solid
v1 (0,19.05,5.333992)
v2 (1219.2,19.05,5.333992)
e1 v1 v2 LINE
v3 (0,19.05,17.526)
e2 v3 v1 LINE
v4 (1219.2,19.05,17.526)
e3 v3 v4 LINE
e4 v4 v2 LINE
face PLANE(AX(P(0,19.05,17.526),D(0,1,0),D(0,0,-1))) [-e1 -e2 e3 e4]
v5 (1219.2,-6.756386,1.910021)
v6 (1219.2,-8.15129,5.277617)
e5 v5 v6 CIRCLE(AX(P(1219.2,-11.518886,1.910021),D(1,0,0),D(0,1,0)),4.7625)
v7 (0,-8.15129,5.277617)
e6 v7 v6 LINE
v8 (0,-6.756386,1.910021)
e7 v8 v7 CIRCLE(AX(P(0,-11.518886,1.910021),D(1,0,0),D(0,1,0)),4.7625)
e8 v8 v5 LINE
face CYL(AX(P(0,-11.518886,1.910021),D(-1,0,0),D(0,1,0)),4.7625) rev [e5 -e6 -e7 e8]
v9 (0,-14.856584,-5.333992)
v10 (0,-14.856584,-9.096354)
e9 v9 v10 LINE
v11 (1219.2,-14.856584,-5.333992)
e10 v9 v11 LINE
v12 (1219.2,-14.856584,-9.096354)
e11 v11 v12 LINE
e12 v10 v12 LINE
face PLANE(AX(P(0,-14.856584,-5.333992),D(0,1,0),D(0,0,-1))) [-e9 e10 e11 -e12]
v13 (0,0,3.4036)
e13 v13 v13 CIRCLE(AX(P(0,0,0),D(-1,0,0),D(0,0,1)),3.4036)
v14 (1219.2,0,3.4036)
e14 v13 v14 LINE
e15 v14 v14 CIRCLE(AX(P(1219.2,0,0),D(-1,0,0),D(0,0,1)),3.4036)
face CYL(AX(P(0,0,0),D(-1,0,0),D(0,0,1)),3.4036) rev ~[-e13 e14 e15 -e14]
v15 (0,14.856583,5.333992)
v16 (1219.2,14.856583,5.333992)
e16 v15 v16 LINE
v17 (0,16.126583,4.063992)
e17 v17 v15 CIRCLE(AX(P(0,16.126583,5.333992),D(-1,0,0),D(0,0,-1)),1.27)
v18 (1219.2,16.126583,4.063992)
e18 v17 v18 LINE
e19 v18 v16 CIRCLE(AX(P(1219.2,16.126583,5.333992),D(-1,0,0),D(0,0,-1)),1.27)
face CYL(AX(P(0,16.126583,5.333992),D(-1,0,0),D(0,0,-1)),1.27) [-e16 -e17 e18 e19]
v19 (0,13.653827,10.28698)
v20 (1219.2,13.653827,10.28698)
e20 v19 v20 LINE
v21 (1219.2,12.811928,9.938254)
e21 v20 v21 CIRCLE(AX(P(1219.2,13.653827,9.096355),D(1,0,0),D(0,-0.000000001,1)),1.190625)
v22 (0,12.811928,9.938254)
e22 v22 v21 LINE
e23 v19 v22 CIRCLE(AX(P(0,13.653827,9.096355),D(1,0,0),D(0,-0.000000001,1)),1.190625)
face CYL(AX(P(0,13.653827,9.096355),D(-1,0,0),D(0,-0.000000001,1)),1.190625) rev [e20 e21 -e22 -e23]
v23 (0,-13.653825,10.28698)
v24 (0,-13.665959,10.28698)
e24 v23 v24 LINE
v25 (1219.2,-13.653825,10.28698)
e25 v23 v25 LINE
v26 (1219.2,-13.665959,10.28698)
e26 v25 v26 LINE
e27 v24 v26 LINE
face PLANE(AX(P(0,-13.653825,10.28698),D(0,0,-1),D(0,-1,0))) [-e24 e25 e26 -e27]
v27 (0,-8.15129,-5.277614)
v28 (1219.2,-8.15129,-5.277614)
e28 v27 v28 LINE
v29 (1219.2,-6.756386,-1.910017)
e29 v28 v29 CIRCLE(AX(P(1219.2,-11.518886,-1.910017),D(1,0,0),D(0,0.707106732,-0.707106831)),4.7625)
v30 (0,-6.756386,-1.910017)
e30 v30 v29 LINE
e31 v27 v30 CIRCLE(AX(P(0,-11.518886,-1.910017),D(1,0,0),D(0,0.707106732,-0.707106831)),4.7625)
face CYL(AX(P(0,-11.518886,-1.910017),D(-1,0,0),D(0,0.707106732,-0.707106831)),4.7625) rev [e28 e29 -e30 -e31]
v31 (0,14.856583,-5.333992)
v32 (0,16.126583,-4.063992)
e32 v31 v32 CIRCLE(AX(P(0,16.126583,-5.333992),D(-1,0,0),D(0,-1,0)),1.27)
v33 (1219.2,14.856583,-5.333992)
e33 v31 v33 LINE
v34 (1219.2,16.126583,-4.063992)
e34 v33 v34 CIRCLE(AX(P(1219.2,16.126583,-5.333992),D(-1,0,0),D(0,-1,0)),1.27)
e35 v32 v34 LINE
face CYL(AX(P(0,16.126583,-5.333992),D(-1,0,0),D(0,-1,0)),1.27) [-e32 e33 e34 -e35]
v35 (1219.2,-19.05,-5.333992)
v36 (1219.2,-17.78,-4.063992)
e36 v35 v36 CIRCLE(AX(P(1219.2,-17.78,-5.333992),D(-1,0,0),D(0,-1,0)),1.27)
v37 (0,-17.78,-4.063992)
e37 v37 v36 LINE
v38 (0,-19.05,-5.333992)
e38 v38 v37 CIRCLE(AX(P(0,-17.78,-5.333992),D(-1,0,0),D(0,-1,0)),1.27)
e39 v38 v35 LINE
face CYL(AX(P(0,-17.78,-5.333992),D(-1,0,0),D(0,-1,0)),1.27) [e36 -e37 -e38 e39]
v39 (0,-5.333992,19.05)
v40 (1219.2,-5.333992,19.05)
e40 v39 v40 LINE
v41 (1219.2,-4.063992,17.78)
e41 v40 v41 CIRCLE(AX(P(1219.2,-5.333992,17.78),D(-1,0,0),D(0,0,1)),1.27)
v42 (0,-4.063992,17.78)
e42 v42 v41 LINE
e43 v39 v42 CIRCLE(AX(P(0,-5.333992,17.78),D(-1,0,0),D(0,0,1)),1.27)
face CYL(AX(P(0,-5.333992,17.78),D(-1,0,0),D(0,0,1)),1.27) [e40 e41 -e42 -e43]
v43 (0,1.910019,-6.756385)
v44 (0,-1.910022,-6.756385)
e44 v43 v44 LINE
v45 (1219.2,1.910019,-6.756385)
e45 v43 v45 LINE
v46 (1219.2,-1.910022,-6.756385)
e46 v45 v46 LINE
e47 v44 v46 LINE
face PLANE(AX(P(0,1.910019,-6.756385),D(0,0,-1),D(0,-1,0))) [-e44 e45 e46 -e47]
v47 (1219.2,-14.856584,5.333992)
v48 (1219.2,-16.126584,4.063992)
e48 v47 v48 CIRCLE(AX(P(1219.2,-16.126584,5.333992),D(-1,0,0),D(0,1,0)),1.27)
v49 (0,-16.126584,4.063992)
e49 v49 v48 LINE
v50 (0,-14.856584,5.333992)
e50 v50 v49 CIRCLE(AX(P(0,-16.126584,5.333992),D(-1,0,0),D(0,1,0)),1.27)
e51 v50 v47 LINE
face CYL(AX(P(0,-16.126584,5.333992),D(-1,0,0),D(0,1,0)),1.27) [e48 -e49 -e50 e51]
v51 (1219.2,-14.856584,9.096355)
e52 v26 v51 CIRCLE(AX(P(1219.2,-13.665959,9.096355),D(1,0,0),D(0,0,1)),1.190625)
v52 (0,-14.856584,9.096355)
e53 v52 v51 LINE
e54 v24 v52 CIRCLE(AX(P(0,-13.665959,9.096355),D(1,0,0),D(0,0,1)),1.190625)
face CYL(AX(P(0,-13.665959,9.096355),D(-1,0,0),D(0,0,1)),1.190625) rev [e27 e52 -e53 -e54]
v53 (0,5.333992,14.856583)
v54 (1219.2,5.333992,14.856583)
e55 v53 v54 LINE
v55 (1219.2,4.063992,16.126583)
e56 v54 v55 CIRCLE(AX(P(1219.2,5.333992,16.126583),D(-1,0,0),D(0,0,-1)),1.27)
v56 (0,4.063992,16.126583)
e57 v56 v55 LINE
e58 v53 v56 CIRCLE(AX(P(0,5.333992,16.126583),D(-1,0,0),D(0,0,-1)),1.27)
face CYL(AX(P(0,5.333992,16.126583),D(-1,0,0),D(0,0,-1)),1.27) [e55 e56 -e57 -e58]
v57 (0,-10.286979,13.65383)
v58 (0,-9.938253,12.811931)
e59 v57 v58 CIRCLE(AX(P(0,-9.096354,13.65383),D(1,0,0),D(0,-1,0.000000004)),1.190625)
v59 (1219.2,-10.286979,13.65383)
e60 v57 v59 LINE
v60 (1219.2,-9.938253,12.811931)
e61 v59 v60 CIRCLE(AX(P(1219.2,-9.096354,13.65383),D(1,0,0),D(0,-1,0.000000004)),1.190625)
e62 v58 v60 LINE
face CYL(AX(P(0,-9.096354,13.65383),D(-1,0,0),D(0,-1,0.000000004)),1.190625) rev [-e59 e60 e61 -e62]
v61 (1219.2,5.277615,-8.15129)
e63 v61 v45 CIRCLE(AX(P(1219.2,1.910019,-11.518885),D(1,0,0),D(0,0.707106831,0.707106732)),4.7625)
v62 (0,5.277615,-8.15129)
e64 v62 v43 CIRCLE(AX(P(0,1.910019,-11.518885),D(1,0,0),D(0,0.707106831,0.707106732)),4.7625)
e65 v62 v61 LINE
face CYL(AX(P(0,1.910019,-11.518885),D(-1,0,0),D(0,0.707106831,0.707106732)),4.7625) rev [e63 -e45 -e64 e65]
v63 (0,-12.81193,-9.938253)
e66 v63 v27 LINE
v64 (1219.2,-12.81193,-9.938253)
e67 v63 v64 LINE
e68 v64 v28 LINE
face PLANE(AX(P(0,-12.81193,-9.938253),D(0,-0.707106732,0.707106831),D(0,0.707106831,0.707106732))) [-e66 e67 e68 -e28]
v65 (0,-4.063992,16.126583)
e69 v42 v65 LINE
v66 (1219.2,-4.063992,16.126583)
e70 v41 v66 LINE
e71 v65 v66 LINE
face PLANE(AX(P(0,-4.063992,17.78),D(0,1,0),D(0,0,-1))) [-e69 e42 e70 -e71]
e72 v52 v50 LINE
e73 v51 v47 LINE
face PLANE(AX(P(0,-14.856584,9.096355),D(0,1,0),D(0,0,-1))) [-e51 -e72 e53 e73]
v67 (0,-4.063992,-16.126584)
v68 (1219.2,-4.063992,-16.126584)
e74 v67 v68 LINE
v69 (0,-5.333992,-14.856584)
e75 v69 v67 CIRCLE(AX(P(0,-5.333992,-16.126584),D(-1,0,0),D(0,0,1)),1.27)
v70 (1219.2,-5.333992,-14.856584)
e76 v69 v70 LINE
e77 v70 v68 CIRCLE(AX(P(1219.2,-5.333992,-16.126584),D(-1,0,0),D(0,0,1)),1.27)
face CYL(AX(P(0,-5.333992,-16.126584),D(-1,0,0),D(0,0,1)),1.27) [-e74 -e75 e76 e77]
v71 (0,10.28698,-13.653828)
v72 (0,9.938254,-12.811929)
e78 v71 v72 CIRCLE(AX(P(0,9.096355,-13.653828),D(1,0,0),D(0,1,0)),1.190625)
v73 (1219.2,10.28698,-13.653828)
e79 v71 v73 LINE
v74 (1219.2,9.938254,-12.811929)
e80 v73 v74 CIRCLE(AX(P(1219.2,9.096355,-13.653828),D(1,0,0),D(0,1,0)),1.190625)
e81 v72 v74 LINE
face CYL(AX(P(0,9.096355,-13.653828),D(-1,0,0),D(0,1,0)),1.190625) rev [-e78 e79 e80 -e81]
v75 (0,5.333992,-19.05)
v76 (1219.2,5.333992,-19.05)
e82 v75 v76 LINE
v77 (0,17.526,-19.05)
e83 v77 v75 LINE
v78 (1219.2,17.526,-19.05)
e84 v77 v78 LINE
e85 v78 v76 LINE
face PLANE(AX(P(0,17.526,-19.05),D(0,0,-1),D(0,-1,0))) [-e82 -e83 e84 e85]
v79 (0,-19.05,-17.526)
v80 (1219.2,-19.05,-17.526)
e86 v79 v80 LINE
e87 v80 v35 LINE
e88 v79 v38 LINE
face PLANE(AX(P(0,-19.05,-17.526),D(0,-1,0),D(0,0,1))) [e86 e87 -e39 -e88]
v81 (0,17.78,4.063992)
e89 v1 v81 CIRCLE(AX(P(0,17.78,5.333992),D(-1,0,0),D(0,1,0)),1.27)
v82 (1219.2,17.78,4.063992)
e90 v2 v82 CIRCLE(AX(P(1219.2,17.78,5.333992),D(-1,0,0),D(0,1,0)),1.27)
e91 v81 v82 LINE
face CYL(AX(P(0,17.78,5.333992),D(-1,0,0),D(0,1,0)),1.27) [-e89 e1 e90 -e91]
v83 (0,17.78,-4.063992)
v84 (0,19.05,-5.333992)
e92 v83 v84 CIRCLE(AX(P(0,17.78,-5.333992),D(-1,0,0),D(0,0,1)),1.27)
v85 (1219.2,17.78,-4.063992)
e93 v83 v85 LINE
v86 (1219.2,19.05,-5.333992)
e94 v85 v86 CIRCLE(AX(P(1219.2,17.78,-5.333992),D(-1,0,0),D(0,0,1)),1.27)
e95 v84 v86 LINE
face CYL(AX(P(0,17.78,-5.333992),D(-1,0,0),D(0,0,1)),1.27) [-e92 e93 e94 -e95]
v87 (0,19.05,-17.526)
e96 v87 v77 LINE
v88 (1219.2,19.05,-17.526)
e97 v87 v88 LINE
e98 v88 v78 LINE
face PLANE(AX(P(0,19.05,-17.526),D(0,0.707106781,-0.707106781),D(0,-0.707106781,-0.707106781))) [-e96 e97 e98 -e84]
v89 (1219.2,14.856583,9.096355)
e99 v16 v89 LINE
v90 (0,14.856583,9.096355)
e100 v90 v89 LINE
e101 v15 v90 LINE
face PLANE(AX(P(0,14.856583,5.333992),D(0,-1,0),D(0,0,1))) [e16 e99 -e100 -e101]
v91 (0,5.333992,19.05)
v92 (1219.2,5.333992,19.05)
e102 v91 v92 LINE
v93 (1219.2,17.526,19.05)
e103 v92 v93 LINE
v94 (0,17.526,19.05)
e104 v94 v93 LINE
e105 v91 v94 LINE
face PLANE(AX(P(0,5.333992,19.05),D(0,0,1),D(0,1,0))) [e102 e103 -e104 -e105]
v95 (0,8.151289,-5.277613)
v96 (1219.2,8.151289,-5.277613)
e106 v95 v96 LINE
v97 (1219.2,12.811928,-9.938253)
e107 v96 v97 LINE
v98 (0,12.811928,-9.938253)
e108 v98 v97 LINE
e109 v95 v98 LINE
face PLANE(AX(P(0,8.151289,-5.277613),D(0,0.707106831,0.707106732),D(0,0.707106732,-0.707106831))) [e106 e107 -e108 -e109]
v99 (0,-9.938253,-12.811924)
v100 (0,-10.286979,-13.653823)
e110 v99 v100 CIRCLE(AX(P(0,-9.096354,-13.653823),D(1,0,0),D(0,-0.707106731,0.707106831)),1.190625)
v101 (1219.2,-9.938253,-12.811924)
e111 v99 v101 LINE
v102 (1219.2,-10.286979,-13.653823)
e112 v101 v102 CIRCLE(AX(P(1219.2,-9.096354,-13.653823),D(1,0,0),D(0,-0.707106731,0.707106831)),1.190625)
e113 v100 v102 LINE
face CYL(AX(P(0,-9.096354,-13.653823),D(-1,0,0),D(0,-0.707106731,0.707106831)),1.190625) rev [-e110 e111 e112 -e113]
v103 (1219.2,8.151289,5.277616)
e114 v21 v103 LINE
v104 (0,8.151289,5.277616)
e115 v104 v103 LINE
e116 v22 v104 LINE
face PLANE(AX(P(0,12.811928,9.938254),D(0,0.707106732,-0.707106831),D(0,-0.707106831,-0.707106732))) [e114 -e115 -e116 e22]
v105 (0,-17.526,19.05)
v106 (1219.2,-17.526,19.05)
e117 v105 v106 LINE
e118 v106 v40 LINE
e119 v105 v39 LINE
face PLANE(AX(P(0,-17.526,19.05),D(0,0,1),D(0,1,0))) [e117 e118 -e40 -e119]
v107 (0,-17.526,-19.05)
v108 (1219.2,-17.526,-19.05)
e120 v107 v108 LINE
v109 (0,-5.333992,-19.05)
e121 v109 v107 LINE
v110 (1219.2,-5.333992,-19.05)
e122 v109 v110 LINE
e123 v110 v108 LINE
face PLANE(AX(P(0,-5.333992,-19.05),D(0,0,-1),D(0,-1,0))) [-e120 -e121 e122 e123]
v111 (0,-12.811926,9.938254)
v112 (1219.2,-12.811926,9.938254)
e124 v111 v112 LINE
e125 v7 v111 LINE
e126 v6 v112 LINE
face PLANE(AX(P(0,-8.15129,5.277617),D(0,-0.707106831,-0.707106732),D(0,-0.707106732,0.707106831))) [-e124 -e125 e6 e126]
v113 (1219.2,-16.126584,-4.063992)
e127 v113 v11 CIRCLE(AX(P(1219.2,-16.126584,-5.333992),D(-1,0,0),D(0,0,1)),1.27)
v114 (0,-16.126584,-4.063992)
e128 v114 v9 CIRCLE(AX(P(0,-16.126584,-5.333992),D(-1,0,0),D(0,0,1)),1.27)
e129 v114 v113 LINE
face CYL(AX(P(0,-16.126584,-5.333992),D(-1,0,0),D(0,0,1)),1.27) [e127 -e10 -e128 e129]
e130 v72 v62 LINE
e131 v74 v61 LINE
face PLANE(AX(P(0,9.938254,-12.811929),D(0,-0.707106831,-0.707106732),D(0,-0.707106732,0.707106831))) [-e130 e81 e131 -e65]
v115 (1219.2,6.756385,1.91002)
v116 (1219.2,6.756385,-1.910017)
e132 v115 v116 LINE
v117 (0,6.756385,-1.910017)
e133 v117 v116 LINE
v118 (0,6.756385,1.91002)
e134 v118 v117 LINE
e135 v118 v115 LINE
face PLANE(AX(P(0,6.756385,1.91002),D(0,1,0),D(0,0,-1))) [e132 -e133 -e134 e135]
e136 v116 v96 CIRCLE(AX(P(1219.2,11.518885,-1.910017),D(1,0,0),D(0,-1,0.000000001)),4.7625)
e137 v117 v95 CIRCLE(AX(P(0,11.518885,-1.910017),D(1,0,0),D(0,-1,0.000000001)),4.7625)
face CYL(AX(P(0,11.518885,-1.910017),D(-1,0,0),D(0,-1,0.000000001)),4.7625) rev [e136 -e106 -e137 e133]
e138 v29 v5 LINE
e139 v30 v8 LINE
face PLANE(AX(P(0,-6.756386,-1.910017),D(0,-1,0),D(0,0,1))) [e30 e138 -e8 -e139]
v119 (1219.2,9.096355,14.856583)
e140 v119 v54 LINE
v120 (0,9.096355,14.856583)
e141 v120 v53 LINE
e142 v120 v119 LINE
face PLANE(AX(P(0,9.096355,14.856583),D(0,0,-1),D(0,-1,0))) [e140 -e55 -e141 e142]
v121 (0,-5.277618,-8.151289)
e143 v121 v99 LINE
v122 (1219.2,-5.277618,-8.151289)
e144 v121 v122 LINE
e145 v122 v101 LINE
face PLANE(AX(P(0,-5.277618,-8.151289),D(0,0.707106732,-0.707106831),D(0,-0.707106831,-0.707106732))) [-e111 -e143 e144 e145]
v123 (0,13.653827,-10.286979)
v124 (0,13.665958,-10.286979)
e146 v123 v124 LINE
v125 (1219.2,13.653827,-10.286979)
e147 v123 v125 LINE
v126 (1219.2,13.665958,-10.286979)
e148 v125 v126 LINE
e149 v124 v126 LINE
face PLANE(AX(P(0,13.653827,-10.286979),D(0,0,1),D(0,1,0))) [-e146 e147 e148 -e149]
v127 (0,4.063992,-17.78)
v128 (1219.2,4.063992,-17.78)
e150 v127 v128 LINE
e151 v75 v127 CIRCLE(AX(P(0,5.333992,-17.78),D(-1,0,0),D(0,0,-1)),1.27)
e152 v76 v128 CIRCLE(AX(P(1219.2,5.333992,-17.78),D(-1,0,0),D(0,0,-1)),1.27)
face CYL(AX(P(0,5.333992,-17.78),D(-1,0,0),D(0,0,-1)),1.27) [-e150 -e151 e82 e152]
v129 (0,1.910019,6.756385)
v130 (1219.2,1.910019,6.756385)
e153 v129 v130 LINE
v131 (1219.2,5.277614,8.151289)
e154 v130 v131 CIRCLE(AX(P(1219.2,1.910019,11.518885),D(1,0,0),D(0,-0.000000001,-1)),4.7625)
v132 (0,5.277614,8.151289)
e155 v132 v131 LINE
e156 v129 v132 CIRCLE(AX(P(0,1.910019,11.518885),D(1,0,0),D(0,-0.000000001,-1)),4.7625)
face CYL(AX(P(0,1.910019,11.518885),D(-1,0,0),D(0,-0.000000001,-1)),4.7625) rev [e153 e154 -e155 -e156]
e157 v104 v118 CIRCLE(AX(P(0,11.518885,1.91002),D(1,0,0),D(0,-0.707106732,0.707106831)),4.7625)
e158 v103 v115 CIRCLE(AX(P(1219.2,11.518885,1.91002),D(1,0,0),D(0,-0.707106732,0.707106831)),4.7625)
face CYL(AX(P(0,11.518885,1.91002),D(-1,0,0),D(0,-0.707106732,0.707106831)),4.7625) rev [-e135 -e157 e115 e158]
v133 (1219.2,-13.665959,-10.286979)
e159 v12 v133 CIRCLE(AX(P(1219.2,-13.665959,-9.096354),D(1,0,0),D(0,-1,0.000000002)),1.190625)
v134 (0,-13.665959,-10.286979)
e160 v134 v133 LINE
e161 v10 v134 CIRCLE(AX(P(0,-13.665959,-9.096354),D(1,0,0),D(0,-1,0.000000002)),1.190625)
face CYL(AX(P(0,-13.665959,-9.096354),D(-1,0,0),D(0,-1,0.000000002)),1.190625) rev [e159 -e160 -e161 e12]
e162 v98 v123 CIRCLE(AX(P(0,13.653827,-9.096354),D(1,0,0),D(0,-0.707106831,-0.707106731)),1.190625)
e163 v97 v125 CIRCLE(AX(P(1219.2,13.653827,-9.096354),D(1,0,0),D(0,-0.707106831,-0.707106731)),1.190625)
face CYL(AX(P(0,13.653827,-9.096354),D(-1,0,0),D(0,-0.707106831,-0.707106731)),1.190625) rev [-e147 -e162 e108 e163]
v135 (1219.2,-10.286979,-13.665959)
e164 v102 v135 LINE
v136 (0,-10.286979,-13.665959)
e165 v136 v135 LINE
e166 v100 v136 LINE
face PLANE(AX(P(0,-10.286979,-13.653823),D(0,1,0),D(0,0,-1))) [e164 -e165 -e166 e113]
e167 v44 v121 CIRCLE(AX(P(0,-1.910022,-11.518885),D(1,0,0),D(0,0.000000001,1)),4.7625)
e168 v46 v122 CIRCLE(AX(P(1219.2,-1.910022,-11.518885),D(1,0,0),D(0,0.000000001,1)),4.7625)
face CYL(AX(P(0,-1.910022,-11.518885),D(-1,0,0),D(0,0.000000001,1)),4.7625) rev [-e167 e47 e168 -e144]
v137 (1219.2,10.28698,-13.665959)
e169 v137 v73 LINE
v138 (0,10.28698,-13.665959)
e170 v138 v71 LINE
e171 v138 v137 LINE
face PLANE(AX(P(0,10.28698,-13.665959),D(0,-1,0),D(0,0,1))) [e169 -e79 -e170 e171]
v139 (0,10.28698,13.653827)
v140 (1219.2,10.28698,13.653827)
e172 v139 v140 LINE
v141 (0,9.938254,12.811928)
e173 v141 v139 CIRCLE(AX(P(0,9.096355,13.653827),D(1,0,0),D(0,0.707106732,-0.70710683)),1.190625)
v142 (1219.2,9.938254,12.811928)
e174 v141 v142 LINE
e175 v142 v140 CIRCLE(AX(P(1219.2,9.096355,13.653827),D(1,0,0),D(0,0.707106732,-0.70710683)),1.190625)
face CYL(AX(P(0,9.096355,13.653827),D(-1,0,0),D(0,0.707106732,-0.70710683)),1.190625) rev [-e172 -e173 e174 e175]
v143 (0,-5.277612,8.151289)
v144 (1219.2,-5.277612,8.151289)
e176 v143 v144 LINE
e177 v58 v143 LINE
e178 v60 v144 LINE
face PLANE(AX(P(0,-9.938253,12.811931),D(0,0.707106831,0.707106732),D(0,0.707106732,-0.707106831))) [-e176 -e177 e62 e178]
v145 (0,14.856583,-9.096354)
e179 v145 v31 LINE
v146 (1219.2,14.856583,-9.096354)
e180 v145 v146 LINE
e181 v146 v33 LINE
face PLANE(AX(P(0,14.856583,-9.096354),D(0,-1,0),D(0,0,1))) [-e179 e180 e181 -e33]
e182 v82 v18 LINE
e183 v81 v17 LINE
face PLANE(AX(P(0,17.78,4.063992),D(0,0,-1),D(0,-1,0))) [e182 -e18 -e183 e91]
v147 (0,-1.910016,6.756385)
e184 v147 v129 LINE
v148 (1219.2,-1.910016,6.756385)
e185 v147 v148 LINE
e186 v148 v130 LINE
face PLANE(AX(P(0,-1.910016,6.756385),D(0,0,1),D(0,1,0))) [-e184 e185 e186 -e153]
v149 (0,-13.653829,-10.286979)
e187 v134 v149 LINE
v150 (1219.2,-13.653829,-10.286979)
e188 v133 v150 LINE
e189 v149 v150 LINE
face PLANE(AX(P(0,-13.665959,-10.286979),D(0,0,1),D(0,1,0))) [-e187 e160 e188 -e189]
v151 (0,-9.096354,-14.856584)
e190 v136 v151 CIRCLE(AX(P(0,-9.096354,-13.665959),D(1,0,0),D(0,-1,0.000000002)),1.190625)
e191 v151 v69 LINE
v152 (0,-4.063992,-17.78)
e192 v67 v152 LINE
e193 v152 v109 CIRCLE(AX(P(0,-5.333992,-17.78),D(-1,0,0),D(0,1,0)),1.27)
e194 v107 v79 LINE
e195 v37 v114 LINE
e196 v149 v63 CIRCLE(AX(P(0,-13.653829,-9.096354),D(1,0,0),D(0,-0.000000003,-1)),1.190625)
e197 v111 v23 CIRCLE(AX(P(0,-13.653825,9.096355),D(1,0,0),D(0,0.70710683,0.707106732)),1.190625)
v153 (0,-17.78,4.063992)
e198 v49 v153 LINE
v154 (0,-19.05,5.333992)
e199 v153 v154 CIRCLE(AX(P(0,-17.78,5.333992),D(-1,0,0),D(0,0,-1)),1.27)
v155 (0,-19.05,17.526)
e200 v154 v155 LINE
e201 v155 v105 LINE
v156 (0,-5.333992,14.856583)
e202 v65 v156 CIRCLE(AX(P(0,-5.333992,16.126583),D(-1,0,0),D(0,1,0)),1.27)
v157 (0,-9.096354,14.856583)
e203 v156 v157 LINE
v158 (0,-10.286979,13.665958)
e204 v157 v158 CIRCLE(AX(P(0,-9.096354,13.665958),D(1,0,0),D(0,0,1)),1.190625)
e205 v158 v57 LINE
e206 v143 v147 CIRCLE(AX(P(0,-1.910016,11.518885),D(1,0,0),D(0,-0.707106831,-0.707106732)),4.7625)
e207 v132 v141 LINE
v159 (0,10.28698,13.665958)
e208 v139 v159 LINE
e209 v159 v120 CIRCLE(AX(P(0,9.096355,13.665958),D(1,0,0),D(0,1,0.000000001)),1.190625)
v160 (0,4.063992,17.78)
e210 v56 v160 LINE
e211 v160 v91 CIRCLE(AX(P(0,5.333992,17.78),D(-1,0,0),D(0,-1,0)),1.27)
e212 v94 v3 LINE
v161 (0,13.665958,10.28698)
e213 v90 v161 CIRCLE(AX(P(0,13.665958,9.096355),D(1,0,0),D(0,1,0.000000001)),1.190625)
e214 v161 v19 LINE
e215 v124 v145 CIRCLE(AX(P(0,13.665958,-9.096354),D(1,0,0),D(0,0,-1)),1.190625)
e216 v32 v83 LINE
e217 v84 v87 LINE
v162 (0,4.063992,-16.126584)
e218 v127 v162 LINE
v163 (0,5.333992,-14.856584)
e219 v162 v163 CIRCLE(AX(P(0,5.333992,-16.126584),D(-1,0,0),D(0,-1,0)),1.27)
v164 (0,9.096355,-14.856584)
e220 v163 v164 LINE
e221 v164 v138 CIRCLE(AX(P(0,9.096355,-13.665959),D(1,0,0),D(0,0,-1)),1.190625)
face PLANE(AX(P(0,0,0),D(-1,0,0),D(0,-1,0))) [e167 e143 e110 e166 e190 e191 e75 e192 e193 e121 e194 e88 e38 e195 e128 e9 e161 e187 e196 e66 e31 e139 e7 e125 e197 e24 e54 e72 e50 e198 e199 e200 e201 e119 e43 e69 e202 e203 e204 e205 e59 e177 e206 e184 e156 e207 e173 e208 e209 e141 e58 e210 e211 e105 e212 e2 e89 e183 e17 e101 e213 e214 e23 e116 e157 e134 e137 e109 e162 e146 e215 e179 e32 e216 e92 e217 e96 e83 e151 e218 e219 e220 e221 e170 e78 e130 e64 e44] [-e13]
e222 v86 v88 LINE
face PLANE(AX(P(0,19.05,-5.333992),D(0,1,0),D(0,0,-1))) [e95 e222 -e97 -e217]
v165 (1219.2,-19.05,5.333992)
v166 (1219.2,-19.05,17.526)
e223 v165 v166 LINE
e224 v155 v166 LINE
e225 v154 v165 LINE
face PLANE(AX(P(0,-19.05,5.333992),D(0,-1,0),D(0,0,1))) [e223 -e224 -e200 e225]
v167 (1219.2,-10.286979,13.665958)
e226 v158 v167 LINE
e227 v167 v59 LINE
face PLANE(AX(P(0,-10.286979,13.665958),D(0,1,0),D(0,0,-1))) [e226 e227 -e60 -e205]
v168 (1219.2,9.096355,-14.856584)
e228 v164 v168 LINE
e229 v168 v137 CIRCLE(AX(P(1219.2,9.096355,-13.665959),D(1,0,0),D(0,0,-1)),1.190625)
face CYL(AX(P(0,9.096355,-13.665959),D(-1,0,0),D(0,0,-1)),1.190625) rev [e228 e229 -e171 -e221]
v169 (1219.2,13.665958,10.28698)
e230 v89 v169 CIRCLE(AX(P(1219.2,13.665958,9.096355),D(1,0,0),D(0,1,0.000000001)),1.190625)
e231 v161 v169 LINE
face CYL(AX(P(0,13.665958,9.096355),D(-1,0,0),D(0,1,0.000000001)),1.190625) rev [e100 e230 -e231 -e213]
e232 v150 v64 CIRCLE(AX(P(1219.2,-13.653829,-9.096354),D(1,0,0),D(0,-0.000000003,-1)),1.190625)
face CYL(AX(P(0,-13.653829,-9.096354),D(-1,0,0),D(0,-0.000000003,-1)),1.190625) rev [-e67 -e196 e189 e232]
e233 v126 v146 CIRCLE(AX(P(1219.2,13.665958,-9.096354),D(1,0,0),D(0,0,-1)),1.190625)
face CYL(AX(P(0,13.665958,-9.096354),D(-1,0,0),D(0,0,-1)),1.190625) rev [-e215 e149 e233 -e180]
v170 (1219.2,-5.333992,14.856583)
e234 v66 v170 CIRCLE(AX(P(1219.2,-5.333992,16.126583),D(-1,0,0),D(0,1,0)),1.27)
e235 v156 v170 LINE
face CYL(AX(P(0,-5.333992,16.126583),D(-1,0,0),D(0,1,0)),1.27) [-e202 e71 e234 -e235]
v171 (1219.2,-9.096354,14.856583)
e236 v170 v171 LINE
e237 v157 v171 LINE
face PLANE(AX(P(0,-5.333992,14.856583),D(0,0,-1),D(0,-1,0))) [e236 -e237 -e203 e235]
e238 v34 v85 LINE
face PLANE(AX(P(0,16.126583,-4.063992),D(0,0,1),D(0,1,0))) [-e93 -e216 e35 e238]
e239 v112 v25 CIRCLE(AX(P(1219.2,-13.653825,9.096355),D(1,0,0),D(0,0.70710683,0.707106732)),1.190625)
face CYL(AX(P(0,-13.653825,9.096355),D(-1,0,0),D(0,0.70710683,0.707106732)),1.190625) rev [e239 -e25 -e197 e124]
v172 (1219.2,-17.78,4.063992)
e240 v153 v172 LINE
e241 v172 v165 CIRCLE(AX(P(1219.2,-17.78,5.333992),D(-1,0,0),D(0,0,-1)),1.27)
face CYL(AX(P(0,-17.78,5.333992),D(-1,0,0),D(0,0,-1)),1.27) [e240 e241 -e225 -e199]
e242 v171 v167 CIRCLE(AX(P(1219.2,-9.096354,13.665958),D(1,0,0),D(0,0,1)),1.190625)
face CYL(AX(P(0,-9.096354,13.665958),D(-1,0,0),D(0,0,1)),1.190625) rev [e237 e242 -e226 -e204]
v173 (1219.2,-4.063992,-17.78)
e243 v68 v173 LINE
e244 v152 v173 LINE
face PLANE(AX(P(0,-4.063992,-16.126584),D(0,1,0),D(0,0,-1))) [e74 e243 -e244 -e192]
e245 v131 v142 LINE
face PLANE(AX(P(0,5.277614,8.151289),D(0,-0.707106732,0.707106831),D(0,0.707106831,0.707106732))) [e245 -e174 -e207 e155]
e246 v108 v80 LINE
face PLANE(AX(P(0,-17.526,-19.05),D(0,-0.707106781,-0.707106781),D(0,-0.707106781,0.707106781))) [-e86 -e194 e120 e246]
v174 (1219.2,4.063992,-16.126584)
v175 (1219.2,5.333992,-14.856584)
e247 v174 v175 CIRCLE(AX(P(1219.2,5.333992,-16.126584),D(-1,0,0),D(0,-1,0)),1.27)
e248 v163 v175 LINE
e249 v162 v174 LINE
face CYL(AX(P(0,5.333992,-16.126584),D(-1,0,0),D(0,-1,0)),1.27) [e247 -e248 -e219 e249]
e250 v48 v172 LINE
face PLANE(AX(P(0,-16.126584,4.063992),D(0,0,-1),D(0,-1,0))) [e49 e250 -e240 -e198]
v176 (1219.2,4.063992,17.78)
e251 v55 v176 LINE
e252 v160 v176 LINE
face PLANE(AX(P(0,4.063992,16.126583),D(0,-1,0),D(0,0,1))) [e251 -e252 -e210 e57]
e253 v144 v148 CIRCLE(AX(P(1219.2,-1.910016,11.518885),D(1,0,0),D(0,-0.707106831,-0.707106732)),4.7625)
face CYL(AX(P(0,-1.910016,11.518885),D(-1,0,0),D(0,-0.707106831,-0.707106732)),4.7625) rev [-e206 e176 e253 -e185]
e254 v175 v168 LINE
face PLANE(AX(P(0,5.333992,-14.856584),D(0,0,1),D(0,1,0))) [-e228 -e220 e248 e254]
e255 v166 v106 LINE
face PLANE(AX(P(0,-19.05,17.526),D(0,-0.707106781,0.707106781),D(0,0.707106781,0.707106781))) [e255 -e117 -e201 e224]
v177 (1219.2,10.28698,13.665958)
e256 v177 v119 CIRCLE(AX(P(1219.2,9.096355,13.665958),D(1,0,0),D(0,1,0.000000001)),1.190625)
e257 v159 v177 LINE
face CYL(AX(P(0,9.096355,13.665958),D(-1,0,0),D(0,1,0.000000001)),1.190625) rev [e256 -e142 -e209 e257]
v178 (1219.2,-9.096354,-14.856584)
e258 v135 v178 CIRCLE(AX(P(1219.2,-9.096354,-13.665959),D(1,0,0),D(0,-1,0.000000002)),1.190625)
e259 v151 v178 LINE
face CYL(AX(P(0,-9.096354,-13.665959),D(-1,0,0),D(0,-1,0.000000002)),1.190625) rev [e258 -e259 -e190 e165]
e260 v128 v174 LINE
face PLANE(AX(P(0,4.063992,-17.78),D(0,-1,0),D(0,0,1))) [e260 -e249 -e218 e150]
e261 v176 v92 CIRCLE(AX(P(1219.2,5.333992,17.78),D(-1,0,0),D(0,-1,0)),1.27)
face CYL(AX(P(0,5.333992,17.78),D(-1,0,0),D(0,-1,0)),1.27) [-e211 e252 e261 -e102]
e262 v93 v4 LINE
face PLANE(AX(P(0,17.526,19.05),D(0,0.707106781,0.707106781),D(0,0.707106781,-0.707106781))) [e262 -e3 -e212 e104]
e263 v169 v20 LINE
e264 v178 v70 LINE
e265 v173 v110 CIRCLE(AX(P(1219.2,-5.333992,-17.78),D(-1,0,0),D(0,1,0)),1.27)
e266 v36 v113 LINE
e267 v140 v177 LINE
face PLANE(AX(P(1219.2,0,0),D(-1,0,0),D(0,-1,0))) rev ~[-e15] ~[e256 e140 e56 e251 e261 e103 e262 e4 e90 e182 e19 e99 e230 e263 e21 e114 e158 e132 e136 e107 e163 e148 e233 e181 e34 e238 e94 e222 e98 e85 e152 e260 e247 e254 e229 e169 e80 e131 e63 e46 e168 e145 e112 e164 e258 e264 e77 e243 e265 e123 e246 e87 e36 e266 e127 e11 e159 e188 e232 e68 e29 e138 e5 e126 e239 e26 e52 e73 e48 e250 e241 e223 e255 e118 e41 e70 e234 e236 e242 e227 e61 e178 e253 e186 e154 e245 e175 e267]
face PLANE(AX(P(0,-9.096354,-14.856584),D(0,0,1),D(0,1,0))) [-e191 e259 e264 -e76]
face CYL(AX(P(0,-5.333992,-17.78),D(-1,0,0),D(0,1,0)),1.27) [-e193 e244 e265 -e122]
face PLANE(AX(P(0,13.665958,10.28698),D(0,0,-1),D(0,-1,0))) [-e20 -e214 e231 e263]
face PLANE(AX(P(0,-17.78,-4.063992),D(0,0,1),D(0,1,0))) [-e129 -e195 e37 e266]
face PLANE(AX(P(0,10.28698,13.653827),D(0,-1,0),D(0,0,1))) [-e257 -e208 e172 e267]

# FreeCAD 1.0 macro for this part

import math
import FreeCAD as App
import Part
import Sketcher
from FreeCAD import Vector
Q = App.Units.Quantity

doc = App.newDocument("Part")
params = doc.addObject("Spreadsheet::Sheet", "Params")
for row, (alias, value) in enumerate([
    ("sketch1_radius", "0.05 in"),
    ("sketch1_diameter", "0.268 in"),
    ("sketch1_radius2", "0.046875 in"),
    ("sketch1_radius3", "0.1875 in"),
    ("pad1_length", "48 in"),
], start=1):
    params.set(f"A{row}", alias)
    params.set(f"B{row}", "=" + value)
    params.setAlias(f"B{row}", alias)

body = doc.addObject("PartDesign::Body", "Body")

# Sketch on YZ plane
sketch1 = body.newObject("Sketcher::SketchObject", "Sketch")
sketch1.AttachmentSupport = (doc.getObject("YZ_Plane"), [""])
sketch1.MapMode = "FlatFace"
sketch1.addGeometry([
    Part.LineSegment(Vector(-19.05, 5.334, 0), Vector(-19.05, 17.526, 0)),  # 0
    Part.LineSegment(Vector(-19.05, 17.526, 0), Vector(-17.526, 19.05, 0)),  # 1
    Part.LineSegment(Vector(-17.526, 19.05, 0), Vector(-5.334, 19.05, 0)),  # 2
    Part.ArcOfCircle(Part.Circle(Vector(-5.334, 17.78, 0), Vector(0, 0, 1), 1.27), math.radians(0), math.radians(90)),  # 3
    Part.LineSegment(Vector(-4.064, 17.78, 0), Vector(-4.064, 16.127, 0)),  # 4
    Part.ArcOfCircle(Part.Circle(Vector(-5.334, 16.127, 0), Vector(0, 0, 1), 1.27), math.radians(-90), math.radians(0)),  # 5
    Part.LineSegment(Vector(-5.334, 14.857, 0), Vector(-9.096, 14.857, 0)),  # 6
    Part.ArcOfCircle(Part.Circle(Vector(-9.096, 13.666, 0), Vector(0, 0, 1), 1.191), math.radians(90), math.radians(180)),  # 7
    Part.LineSegment(Vector(-10.287, 13.666, 0), Vector(-10.287, 13.654, 0)),  # 8
    Part.ArcOfCircle(Part.Circle(Vector(-9.096, 13.654, 0), Vector(0, 0, 1), 1.191), math.radians(180), math.radians(225)),  # 9
    Part.LineSegment(Vector(-9.938, 12.812, 0), Vector(-5.278, 8.151, 0)),  # 10
    Part.ArcOfCircle(Part.Circle(Vector(-1.91, 11.519, 0), Vector(0, 0, 1), 4.762), math.radians(-135), math.radians(-90)),  # 11
    Part.LineSegment(Vector(-1.91, 6.756, 0), Vector(1.91, 6.756, 0)),  # 12
    Part.ArcOfCircle(Part.Circle(Vector(1.91, 11.519, 0), Vector(0, 0, 1), 4.762), math.radians(-90), math.radians(-45)),  # 13
    Part.LineSegment(Vector(5.278, 8.151, 0), Vector(9.938, 12.812, 0)),  # 14
    Part.ArcOfCircle(Part.Circle(Vector(9.096, 13.654, 0), Vector(0, 0, 1), 1.191), math.radians(-45), math.radians(0)),  # 15
    Part.LineSegment(Vector(10.287, 13.654, 0), Vector(10.287, 13.666, 0)),  # 16
    Part.ArcOfCircle(Part.Circle(Vector(9.096, 13.666, 0), Vector(0, 0, 1), 1.191), math.radians(0), math.radians(90)),  # 17
    Part.LineSegment(Vector(9.096, 14.857, 0), Vector(5.334, 14.857, 0)),  # 18
    Part.ArcOfCircle(Part.Circle(Vector(5.334, 16.127, 0), Vector(0, 0, 1), 1.27), math.radians(180), math.radians(270)),  # 19
    Part.LineSegment(Vector(4.064, 16.127, 0), Vector(4.064, 17.78, 0)),  # 20
    Part.ArcOfCircle(Part.Circle(Vector(5.334, 17.78, 0), Vector(0, 0, 1), 1.27), math.radians(90), math.radians(180)),  # 21
    Part.LineSegment(Vector(5.334, 19.05, 0), Vector(17.526, 19.05, 0)),  # 22
    Part.LineSegment(Vector(17.526, 19.05, 0), Vector(19.05, 17.526, 0)),  # 23
    Part.LineSegment(Vector(19.05, 17.526, 0), Vector(19.05, 5.334, 0)),  # 24
    Part.ArcOfCircle(Part.Circle(Vector(17.78, 5.334, 0), Vector(0, 0, 1), 1.27), math.radians(-90), math.radians(0)),  # 25
    Part.LineSegment(Vector(17.78, 4.064, 0), Vector(16.127, 4.064, 0)),  # 26
    Part.ArcOfCircle(Part.Circle(Vector(16.127, 5.334, 0), Vector(0, 0, 1), 1.27), math.radians(180), math.radians(270)),  # 27
    Part.LineSegment(Vector(14.857, 5.334, 0), Vector(14.857, 9.096, 0)),  # 28
    Part.ArcOfCircle(Part.Circle(Vector(13.666, 9.096, 0), Vector(0, 0, 1), 1.191), math.radians(0), math.radians(90)),  # 29
    Part.LineSegment(Vector(13.666, 10.287, 0), Vector(13.654, 10.287, 0)),  # 30
    Part.ArcOfCircle(Part.Circle(Vector(13.654, 9.096, 0), Vector(0, 0, 1), 1.191), math.radians(90), math.radians(135)),  # 31
    Part.LineSegment(Vector(12.812, 9.938, 0), Vector(8.151, 5.278, 0)),  # 32
    Part.ArcOfCircle(Part.Circle(Vector(11.519, 1.91, 0), Vector(0, 0, 1), 4.762), math.radians(135), math.radians(180)),  # 33
    Part.LineSegment(Vector(6.756, 1.91, 0), Vector(6.756, -1.91, 0)),  # 34
    Part.ArcOfCircle(Part.Circle(Vector(11.519, -1.91, 0), Vector(0, 0, 1), 4.762), math.radians(180), math.radians(225)),  # 35
    Part.LineSegment(Vector(8.151, -5.278, 0), Vector(12.812, -9.938, 0)),  # 36
    Part.ArcOfCircle(Part.Circle(Vector(13.654, -9.096, 0), Vector(0, 0, 1), 1.191), math.radians(-135), math.radians(-90)),  # 37
    Part.LineSegment(Vector(13.654, -10.287, 0), Vector(13.666, -10.287, 0)),  # 38
    Part.ArcOfCircle(Part.Circle(Vector(13.666, -9.096, 0), Vector(0, 0, 1), 1.191), math.radians(-90), math.radians(0)),  # 39
    Part.LineSegment(Vector(14.857, -9.096, 0), Vector(14.857, -5.334, 0)),  # 40
    Part.ArcOfCircle(Part.Circle(Vector(16.127, -5.334, 0), Vector(0, 0, 1), 1.27), math.radians(90), math.radians(180)),  # 41
    Part.LineSegment(Vector(16.127, -4.064, 0), Vector(17.78, -4.064, 0)),  # 42
    Part.ArcOfCircle(Part.Circle(Vector(17.78, -5.334, 0), Vector(0, 0, 1), 1.27), math.radians(0), math.radians(90)),  # 43
    Part.LineSegment(Vector(19.05, -5.334, 0), Vector(19.05, -17.526, 0)),  # 44
    Part.LineSegment(Vector(19.05, -17.526, 0), Vector(17.526, -19.05, 0)),  # 45
    Part.LineSegment(Vector(17.526, -19.05, 0), Vector(5.334, -19.05, 0)),  # 46
    Part.ArcOfCircle(Part.Circle(Vector(5.334, -17.78, 0), Vector(0, 0, 1), 1.27), math.radians(180), math.radians(270)),  # 47
    Part.LineSegment(Vector(4.064, -17.78, 0), Vector(4.064, -16.127, 0)),  # 48
    Part.ArcOfCircle(Part.Circle(Vector(5.334, -16.127, 0), Vector(0, 0, 1), 1.27), math.radians(90), math.radians(180)),  # 49
    Part.LineSegment(Vector(5.334, -14.857, 0), Vector(9.096, -14.857, 0)),  # 50
    Part.ArcOfCircle(Part.Circle(Vector(9.096, -13.666, 0), Vector(0, 0, 1), 1.191), math.radians(-90), math.radians(0)),  # 51
    Part.LineSegment(Vector(10.287, -13.666, 0), Vector(10.287, -13.654, 0)),  # 52
    Part.ArcOfCircle(Part.Circle(Vector(9.096, -13.654, 0), Vector(0, 0, 1), 1.191), math.radians(0), math.radians(45)),  # 53
    Part.LineSegment(Vector(9.938, -12.812, 0), Vector(5.278, -8.151, 0)),  # 54
    Part.ArcOfCircle(Part.Circle(Vector(1.91, -11.519, 0), Vector(0, 0, 1), 4.763), math.radians(45), math.radians(90)),  # 55
    Part.LineSegment(Vector(1.91, -6.756, 0), Vector(-1.91, -6.756, 0)),  # 56
    Part.ArcOfCircle(Part.Circle(Vector(-1.91, -11.519, 0), Vector(0, 0, 1), 4.762), math.radians(90), math.radians(135)),  # 57
    Part.LineSegment(Vector(-5.278, -8.151, 0), Vector(-9.938, -12.812, 0)),  # 58
    Part.ArcOfCircle(Part.Circle(Vector(-9.096, -13.654, 0), Vector(0, 0, 1), 1.191), math.radians(135), math.radians(180)),  # 59
    Part.LineSegment(Vector(-10.287, -13.654, 0), Vector(-10.287, -13.666, 0)),  # 60
    Part.ArcOfCircle(Part.Circle(Vector(-9.096, -13.666, 0), Vector(0, 0, 1), 1.191), math.radians(180), math.radians(270)),  # 61
    Part.LineSegment(Vector(-9.096, -14.857, 0), Vector(-5.334, -14.857, 0)),  # 62
    Part.ArcOfCircle(Part.Circle(Vector(-5.334, -16.127, 0), Vector(0, 0, 1), 1.27), math.radians(0), math.radians(90)),  # 63
    Part.LineSegment(Vector(-4.064, -16.127, 0), Vector(-4.064, -17.78, 0)),  # 64
    Part.ArcOfCircle(Part.Circle(Vector(-5.334, -17.78, 0), Vector(0, 0, 1), 1.27), math.radians(-90), math.radians(0)),  # 65
    Part.LineSegment(Vector(-5.334, -19.05, 0), Vector(-17.526, -19.05, 0)),  # 66
    Part.LineSegment(Vector(-17.526, -19.05, 0), Vector(-19.05, -17.526, 0)),  # 67
    Part.LineSegment(Vector(-19.05, -17.526, 0), Vector(-19.05, -5.334, 0)),  # 68
    Part.ArcOfCircle(Part.Circle(Vector(-17.78, -5.334, 0), Vector(0, 0, 1), 1.27), math.radians(90), math.radians(180)),  # 69
    Part.LineSegment(Vector(-17.78, -4.064, 0), Vector(-16.127, -4.064, 0)),  # 70
    Part.ArcOfCircle(Part.Circle(Vector(-16.127, -5.334, 0), Vector(0, 0, 1), 1.27), math.radians(0), math.radians(90)),  # 71
    Part.LineSegment(Vector(-14.857, -5.334, 0), Vector(-14.857, -9.096, 0)),  # 72
    Part.ArcOfCircle(Part.Circle(Vector(-13.666, -9.096, 0), Vector(0, 0, 1), 1.191), math.radians(180), math.radians(270)),  # 73
    Part.LineSegment(Vector(-13.666, -10.287, 0), Vector(-13.654, -10.287, 0)),  # 74
    Part.ArcOfCircle(Part.Circle(Vector(-13.654, -9.096, 0), Vector(0, 0, 1), 1.191), math.radians(-90), math.radians(-45)),  # 75
    Part.LineSegment(Vector(-12.812, -9.938, 0), Vector(-8.151, -5.278, 0)),  # 76
    Part.ArcOfCircle(Part.Circle(Vector(-11.519, -1.91, 0), Vector(0, 0, 1), 4.762), math.radians(-45), math.radians(0)),  # 77
    Part.LineSegment(Vector(-6.756, -1.91, 0), Vector(-6.756, 1.91, 0)),  # 78
    Part.ArcOfCircle(Part.Circle(Vector(-11.519, 1.91, 0), Vector(0, 0, 1), 4.763), math.radians(0), math.radians(45)),  # 79
    Part.LineSegment(Vector(-8.151, 5.278, 0), Vector(-12.812, 9.938, 0)),  # 80
    Part.ArcOfCircle(Part.Circle(Vector(-13.654, 9.096, 0), Vector(0, 0, 1), 1.191), math.radians(45), math.radians(90)),  # 81
    Part.LineSegment(Vector(-13.654, 10.287, 0), Vector(-13.666, 10.287, 0)),  # 82
    Part.ArcOfCircle(Part.Circle(Vector(-13.666, 9.096, 0), Vector(0, 0, 1), 1.191), math.radians(90), math.radians(180)),  # 83
    Part.LineSegment(Vector(-14.857, 9.096, 0), Vector(-14.857, 5.334, 0)),  # 84
    Part.ArcOfCircle(Part.Circle(Vector(-16.127, 5.334, 0), Vector(0, 0, 1), 1.27), math.radians(-90), math.radians(0)),  # 85
    Part.LineSegment(Vector(-16.127, 4.064, 0), Vector(-17.78, 4.064, 0)),  # 86
    Part.ArcOfCircle(Part.Circle(Vector(-17.78, 5.334, 0), Vector(0, 0, 1), 1.27), math.radians(180), math.radians(270)),  # 87
    Part.Circle(Vector(0, 0, 0), Vector(0, 0, 1), 3.404),  # 88
], False)
sketch1.addConstraint([
    Sketcher.Constraint("Coincident", 0, 2, 1, 1),
    Sketcher.Constraint("Coincident", 1, 2, 2, 1),
    Sketcher.Constraint("Tangent", 2, 2, 3, 2),
    Sketcher.Constraint("Tangent", 3, 1, 4, 1),
    Sketcher.Constraint("Tangent", 4, 2, 5, 2),
    Sketcher.Constraint("Tangent", 5, 1, 6, 1),
    Sketcher.Constraint("Tangent", 6, 2, 7, 1),
    Sketcher.Constraint("Tangent", 7, 2, 8, 1),
    Sketcher.Constraint("Tangent", 8, 2, 9, 1),
    Sketcher.Constraint("Tangent", 9, 2, 10, 1),
    Sketcher.Constraint("Tangent", 10, 2, 11, 1),
    Sketcher.Constraint("Tangent", 11, 2, 12, 1),
    Sketcher.Constraint("Tangent", 12, 2, 13, 1),
    Sketcher.Constraint("Tangent", 13, 2, 14, 1),
    Sketcher.Constraint("Tangent", 14, 2, 15, 1),
    Sketcher.Constraint("Tangent", 15, 2, 16, 1),
    Sketcher.Constraint("Tangent", 16, 2, 17, 1),
    Sketcher.Constraint("Tangent", 17, 2, 18, 1),
    Sketcher.Constraint("Tangent", 18, 2, 19, 2),
    Sketcher.Constraint("Tangent", 19, 1, 20, 1),
    Sketcher.Constraint("Tangent", 20, 2, 21, 2),
    Sketcher.Constraint("Tangent", 21, 1, 22, 1),
    Sketcher.Constraint("Coincident", 22, 2, 23, 1),
    Sketcher.Constraint("Coincident", 23, 2, 24, 1),
    Sketcher.Constraint("Tangent", 24, 2, 25, 2),
    Sketcher.Constraint("Tangent", 25, 1, 26, 1),
    Sketcher.Constraint("Tangent", 26, 2, 27, 2),
    Sketcher.Constraint("Tangent", 27, 1, 28, 1),
    Sketcher.Constraint("Tangent", 28, 2, 29, 1),
    Sketcher.Constraint("Tangent", 29, 2, 30, 1),
    Sketcher.Constraint("Tangent", 30, 2, 31, 1),
    Sketcher.Constraint("Tangent", 31, 2, 32, 1),
    Sketcher.Constraint("Tangent", 32, 2, 33, 1),
    Sketcher.Constraint("Tangent", 33, 2, 34, 1),
    Sketcher.Constraint("Tangent", 34, 2, 35, 1),
    Sketcher.Constraint("Tangent", 35, 2, 36, 1),
    Sketcher.Constraint("Tangent", 36, 2, 37, 1),
    Sketcher.Constraint("Tangent", 37, 2, 38, 1),
    Sketcher.Constraint("Tangent", 38, 2, 39, 1),
    Sketcher.Constraint("Tangent", 39, 2, 40, 1),
    Sketcher.Constraint("Tangent", 40, 2, 41, 2),
    Sketcher.Constraint("Tangent", 41, 1, 42, 1),
    Sketcher.Constraint("Tangent", 42, 2, 43, 2),
    Sketcher.Constraint("Tangent", 43, 1, 44, 1),
    Sketcher.Constraint("Coincident", 44, 2, 45, 1),
    Sketcher.Constraint("Coincident", 45, 2, 46, 1),
    Sketcher.Constraint("Tangent", 46, 2, 47, 2),
    Sketcher.Constraint("Tangent", 47, 1, 48, 1),
    Sketcher.Constraint("Tangent", 48, 2, 49, 2),
    Sketcher.Constraint("Tangent", 49, 1, 50, 1),
    Sketcher.Constraint("Tangent", 50, 2, 51, 1),
    Sketcher.Constraint("Tangent", 51, 2, 52, 1),
    Sketcher.Constraint("Tangent", 52, 2, 53, 1),
    Sketcher.Constraint("Tangent", 53, 2, 54, 1),
    Sketcher.Constraint("Tangent", 54, 2, 55, 1),
    Sketcher.Constraint("Tangent", 55, 2, 56, 1),
    Sketcher.Constraint("Tangent", 56, 2, 57, 1),
    Sketcher.Constraint("Tangent", 57, 2, 58, 1),
    Sketcher.Constraint("Tangent", 58, 2, 59, 1),
    Sketcher.Constraint("Tangent", 59, 2, 60, 1),
    Sketcher.Constraint("Tangent", 60, 2, 61, 1),
    Sketcher.Constraint("Tangent", 61, 2, 62, 1),
    Sketcher.Constraint("Tangent", 62, 2, 63, 2),
    Sketcher.Constraint("Tangent", 63, 1, 64, 1),
    Sketcher.Constraint("Tangent", 64, 2, 65, 2),
    Sketcher.Constraint("Tangent", 65, 1, 66, 1),
    Sketcher.Constraint("Coincident", 66, 2, 67, 1),
    Sketcher.Constraint("Coincident", 67, 2, 68, 1),
    Sketcher.Constraint("Tangent", 68, 2, 69, 2),
    Sketcher.Constraint("Tangent", 69, 1, 70, 1),
    Sketcher.Constraint("Tangent", 70, 2, 71, 2),
    Sketcher.Constraint("Tangent", 71, 1, 72, 1),
    Sketcher.Constraint("Tangent", 72, 2, 73, 1),
    Sketcher.Constraint("Tangent", 73, 2, 74, 1),
    Sketcher.Constraint("Tangent", 74, 2, 75, 1),
    Sketcher.Constraint("Tangent", 75, 2, 76, 1),
    Sketcher.Constraint("Tangent", 76, 2, 77, 1),
    Sketcher.Constraint("Tangent", 77, 2, 78, 1),
    Sketcher.Constraint("Tangent", 78, 2, 79, 1),
    Sketcher.Constraint("Tangent", 79, 2, 80, 1),
    Sketcher.Constraint("Tangent", 80, 2, 81, 1),
    Sketcher.Constraint("Tangent", 81, 2, 82, 1),
    Sketcher.Constraint("Tangent", 82, 2, 83, 1),
    Sketcher.Constraint("Tangent", 83, 2, 84, 1),
    Sketcher.Constraint("Tangent", 84, 2, 85, 2),
    Sketcher.Constraint("Tangent", 85, 1, 86, 1),
    Sketcher.Constraint("Tangent", 86, 2, 87, 2),
    Sketcher.Constraint("Tangent", 87, 1, 0, 1),
    Sketcher.Constraint("Vertical", 0),
    Sketcher.Constraint("Horizontal", 2),
    Sketcher.Constraint("Vertical", 4),
    Sketcher.Constraint("Horizontal", 6),
    Sketcher.Constraint("Vertical", 8),
    Sketcher.Constraint("Horizontal", 12),
    Sketcher.Constraint("Vertical", 16),
    Sketcher.Constraint("Horizontal", 18),
    Sketcher.Constraint("Vertical", 20),
    Sketcher.Constraint("Horizontal", 22),
    Sketcher.Constraint("Vertical", 24),
    Sketcher.Constraint("Horizontal", 26),
    Sketcher.Constraint("Vertical", 28),
    Sketcher.Constraint("Horizontal", 30),
    Sketcher.Constraint("Vertical", 34),
    Sketcher.Constraint("Horizontal", 38),
    Sketcher.Constraint("Vertical", 40),
    Sketcher.Constraint("Horizontal", 42),
    Sketcher.Constraint("Vertical", 44),
    Sketcher.Constraint("Horizontal", 46),
    Sketcher.Constraint("Vertical", 48),
    Sketcher.Constraint("Horizontal", 50),
    Sketcher.Constraint("Vertical", 52),
    Sketcher.Constraint("Horizontal", 56),
    Sketcher.Constraint("Vertical", 60),
    Sketcher.Constraint("Horizontal", 62),
    Sketcher.Constraint("Vertical", 64),
    Sketcher.Constraint("Horizontal", 66),
    Sketcher.Constraint("Vertical", 68),
    Sketcher.Constraint("Horizontal", 70),
    Sketcher.Constraint("Vertical", 72),
    Sketcher.Constraint("Horizontal", 74),
    Sketcher.Constraint("Vertical", 78),
    Sketcher.Constraint("Horizontal", 82),
    Sketcher.Constraint("Vertical", 84),
    Sketcher.Constraint("Horizontal", 86),
    Sketcher.Constraint("Coincident", 88, 3, -1, 1),
    Sketcher.Constraint("Equal", 3, 5),
    Sketcher.Constraint("Equal", 7, 9),
    Sketcher.Constraint("Equal", 11, 13),
    Sketcher.Constraint("Equal", 9, 15),
    Sketcher.Constraint("Equal", 15, 17),
    Sketcher.Constraint("Equal", 5, 19),
    Sketcher.Constraint("Equal", 19, 21),
    Sketcher.Constraint("Equal", 21, 25),
    Sketcher.Constraint("Equal", 25, 27),
    Sketcher.Constraint("Equal", 17, 29),
    Sketcher.Constraint("Equal", 29, 31),
    Sketcher.Constraint("Equal", 13, 33),
    Sketcher.Constraint("Equal", 33, 35),
    Sketcher.Constraint("Equal", 31, 37),
    Sketcher.Constraint("Equal", 37, 39),
    Sketcher.Constraint("Equal", 27, 41),
    Sketcher.Constraint("Equal", 41, 43),
    Sketcher.Constraint("Equal", 43, 47),
    Sketcher.Constraint("Equal", 47, 49),
    Sketcher.Constraint("Equal", 39, 51),
    Sketcher.Constraint("Equal", 51, 53),
    Sketcher.Constraint("Equal", 35, 55),
    Sketcher.Constraint("Equal", 55, 57),
    Sketcher.Constraint("Equal", 53, 59),
    Sketcher.Constraint("Equal", 59, 61),
    Sketcher.Constraint("Equal", 49, 63),
    Sketcher.Constraint("Equal", 63, 65),
    Sketcher.Constraint("Equal", 65, 69),
    Sketcher.Constraint("Equal", 69, 71),
    Sketcher.Constraint("Equal", 61, 73),
    Sketcher.Constraint("Equal", 73, 75),
    Sketcher.Constraint("Equal", 57, 77),
    Sketcher.Constraint("Equal", 77, 79),
    Sketcher.Constraint("Equal", 75, 81),
    Sketcher.Constraint("Equal", 81, 83),
    Sketcher.Constraint("Equal", 71, 85),
    Sketcher.Constraint("Equal", 85, 87),
    Sketcher.Constraint("Symmetric", 3, 3, 47, 3, -1, 1),
    Sketcher.Constraint("Symmetric", 7, 3, 51, 3, -1, 1),
    Sketcher.Constraint("Symmetric", 11, 3, 55, 3, -1, 1),
    Sketcher.Constraint("Symmetric", 15, 3, 59, 3, -1, 1),
    Sketcher.Constraint("Symmetric", 19, 3, 63, 3, -1, 1),
    Sketcher.Constraint("Symmetric", 25, 3, 69, 3, -1, 1),
    Sketcher.Constraint("Symmetric", 29, 3, 73, 3, -1, 1),
    Sketcher.Constraint("Symmetric", 33, 3, 77, 3, -1, 1),
    Sketcher.Constraint("Symmetric", 37, 3, 81, 3, -1, 1),
    Sketcher.Constraint("Symmetric", 41, 3, 85, 3, -1, 1),
    Sketcher.Constraint("Symmetric", 0, 2, 44, 2, -1, 1),
    Sketcher.Constraint("Symmetric", 22, 2, 66, 2, -1, 1),
    Sketcher.Constraint("Symmetric", 9, 3, 15, 3, -2),
    Sketcher.Constraint("Symmetric", 5, 3, 19, 3, -2),
    Sketcher.Constraint("Symmetric", 43, 3, 69, 3, -2),
    Sketcher.Constraint("Symmetric", 39, 3, 73, 3, -2),
    Sketcher.Constraint("Symmetric", 1, 2, 22, 2, -2),
    Sketcher.Constraint("Symmetric", 54, 2, 57, 2, -2),
    Sketcher.Constraint("Symmetric", 36, 2, 75, 2, -2),
    Sketcher.Constraint("Symmetric", 32, 2, 79, 2, -2),
    Sketcher.Constraint("Perpendicular", 1, 10),
    Sketcher.Constraint("Perpendicular", 10, 14),
    Sketcher.Constraint("Perpendicular", 14, 23),
    Sketcher.Constraint("Perpendicular", 23, 32),
    Sketcher.Constraint("Perpendicular", 32, 36),
    Sketcher.Constraint("Perpendicular", 36, 45),
    Sketcher.Constraint("Perpendicular", 58, 67),
    Sketcher.Constraint("Equal", 66, 0),
    Sketcher.Constraint("Equal", 86, 4),
    Sketcher.Constraint("Equal", 74, 16),
    Sketcher.Constraint("Equal", 62, 28),
    Sketcher.Constraint("Equal", 14, 32),
    Sketcher.Constraint("Radius", 3, Q("0.05 in")),
    Sketcher.Constraint("Diameter", 88, Q("0.268 in")),
    Sketcher.Constraint("Radius", 7, Q("0.046875 in")),
    Sketcher.Constraint("Radius", 11, Q("0.1875 in")),
    Sketcher.Constraint("DistanceY", -1, 1, 3, 3, Q("0.7 in")),
    Sketcher.Constraint("DistanceX", -1, 1, 25, 3, Q("0.7 in")),
    Sketcher.Constraint("DistanceY", -1, 1, 0, 2, Q("0.69 in")),
    Sketcher.Constraint("DistanceX", 2, 1, 2, 2, 12.192008),
    Sketcher.Constraint("DistanceX", 30, 2, 30, 1, 0.012131),
    Sketcher.Constraint("DistanceX", 56, 2, 56, 1, 3.820041),
    Sketcher.Constraint("Distance", 14, 6.591139),
    Sketcher.Constraint("DistanceX", 26, 2, 26, 1, 1.653417),
])
sketch1.setExpression("Constraints[194]", "Params.sketch1_radius")
sketch1.setExpression("Constraints[195]", "Params.sketch1_diameter")
sketch1.setExpression("Constraints[196]", "Params.sketch1_radius2")
sketch1.setExpression("Constraints[197]", "Params.sketch1_radius3")
pad1 = body.newObject("PartDesign::Pad", "Pad")
pad1.Profile = sketch1
pad1.setExpression("Length", "Params.pad1_length")

doc.recompute()
